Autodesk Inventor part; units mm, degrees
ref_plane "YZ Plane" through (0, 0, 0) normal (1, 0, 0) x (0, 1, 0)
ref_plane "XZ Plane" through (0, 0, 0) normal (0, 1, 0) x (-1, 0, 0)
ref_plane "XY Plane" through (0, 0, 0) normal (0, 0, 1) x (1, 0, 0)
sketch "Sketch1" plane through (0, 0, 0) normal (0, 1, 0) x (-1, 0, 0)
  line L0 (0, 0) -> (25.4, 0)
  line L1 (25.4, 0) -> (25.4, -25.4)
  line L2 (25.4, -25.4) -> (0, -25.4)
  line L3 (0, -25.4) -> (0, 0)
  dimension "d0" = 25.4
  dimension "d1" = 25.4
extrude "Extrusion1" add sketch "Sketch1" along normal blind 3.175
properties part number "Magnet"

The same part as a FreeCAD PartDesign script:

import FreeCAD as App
import Part
import Sketcher

V = App.Vector
Q = App.Units.Quantity

doc = App.newDocument("Part")
params = doc.addObject("Spreadsheet::Sheet", "Params")
for row, (alias, value) in enumerate([
    ("sketch1_width", "1 in"),
    ("pad1_length", "0.125 in"),
], start=1):
    params.set(f"A{row}", alias)
    params.set(f"B{row}", "=" + value)
    params.setAlias(f"B{row}", alias)

body = doc.addObject("PartDesign::Body", "Body")

sketch1 = body.newObject("Sketcher::SketchObject", "Sketch")
sketch1.AttachmentSupport = (doc.getObject("XZ_Plane"), [""])
sketch1.MapMode = "FlatFace"
sketch1.addGeometry(Part.LineSegment(V(-25, 0, 0), V(0, 0, 0)), False)
sketch1.addGeometry(Part.LineSegment(V(0, 0, 0), V(0, -25, 0)), False)
sketch1.addGeometry(Part.LineSegment(V(0, -25, 0), V(-25, -25, 0)), False)
sketch1.addGeometry(Part.LineSegment(V(-25, -25, 0), V(-25, 0, 0)), False)
sketch1.addConstraint(Sketcher.Constraint("Coincident", 0, 2, 1, 1))
sketch1.addConstraint(Sketcher.Constraint("Coincident", 1, 2, 2, 1))
sketch1.addConstraint(Sketcher.Constraint("Coincident", 2, 2, 3, 1))
sketch1.addConstraint(Sketcher.Constraint("Coincident", 3, 2, 0, 1))
sketch1.addConstraint(Sketcher.Constraint("Horizontal", 0))
sketch1.addConstraint(Sketcher.Constraint("Vertical", 1))
sketch1.addConstraint(Sketcher.Constraint("Horizontal", 2))
sketch1.addConstraint(Sketcher.Constraint("Vertical", 3))
sketch1.addConstraint(Sketcher.Constraint("Coincident", 0, 2, -1, 1))
sketch1.addConstraint(Sketcher.Constraint("Equal", 2, 1))
sketch1.addConstraint(Sketcher.Constraint("DistanceX", 0, 1, 0, 2, Q("1 in")))
sketch1.setExpression("Constraints[10]", "Params.sketch1_width")
pad1 = body.newObject("PartDesign::Pad", "Pad")
pad1.Profile = sketch1
pad1.setExpression("Length", "Params.pad1_length")
pad1.Reversed = True

doc.recompute()
